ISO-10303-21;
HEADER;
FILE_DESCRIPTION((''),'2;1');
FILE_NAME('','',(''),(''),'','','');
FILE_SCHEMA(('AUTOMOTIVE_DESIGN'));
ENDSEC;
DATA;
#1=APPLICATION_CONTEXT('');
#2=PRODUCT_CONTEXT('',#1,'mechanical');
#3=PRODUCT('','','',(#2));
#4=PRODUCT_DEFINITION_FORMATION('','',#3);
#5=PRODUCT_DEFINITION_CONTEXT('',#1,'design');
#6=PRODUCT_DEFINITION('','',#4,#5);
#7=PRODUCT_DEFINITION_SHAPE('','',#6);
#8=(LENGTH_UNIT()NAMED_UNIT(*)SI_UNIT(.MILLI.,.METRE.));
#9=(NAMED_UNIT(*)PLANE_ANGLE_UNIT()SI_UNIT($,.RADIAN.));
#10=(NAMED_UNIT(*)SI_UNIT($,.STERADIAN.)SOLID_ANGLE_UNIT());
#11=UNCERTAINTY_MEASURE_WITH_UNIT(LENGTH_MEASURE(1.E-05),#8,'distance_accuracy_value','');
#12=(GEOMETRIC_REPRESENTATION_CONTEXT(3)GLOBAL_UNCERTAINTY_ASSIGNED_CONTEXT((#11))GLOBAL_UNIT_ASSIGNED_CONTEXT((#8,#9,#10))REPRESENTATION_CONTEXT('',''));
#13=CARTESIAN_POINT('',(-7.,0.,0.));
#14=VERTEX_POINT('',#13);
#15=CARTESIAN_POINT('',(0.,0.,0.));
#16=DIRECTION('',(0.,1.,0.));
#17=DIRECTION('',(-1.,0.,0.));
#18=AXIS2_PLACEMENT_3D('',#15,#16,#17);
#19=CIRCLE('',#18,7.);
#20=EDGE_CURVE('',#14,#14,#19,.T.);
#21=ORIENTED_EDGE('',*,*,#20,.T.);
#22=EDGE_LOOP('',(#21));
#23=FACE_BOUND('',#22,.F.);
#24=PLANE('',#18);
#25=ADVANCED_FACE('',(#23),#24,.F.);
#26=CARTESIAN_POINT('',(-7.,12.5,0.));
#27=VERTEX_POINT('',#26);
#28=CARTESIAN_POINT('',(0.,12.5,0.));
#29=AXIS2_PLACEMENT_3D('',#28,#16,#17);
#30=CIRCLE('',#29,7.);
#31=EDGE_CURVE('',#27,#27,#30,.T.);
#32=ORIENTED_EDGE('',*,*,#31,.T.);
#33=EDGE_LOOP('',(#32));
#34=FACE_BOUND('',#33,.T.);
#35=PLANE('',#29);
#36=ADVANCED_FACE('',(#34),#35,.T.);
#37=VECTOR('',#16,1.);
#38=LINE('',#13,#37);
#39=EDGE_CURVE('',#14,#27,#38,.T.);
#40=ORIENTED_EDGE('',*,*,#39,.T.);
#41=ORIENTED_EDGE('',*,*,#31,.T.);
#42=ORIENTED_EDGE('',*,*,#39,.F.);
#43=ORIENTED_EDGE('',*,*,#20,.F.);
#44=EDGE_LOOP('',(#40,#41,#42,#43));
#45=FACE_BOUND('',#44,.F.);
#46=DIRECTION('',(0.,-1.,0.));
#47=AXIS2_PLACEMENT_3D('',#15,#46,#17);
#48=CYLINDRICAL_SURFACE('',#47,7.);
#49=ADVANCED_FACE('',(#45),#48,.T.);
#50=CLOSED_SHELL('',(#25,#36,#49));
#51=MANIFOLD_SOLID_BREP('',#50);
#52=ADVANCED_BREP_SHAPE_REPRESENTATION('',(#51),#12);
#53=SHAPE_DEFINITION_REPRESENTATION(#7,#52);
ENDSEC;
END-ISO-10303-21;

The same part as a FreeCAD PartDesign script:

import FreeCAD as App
import Part
import Sketcher

V = App.Vector

doc = App.newDocument("Part")
body = doc.addObject("PartDesign::Body", "Body")

# Sketch on XZ plane
sketch1 = body.newObject("Sketcher::SketchObject", "Sketch")
sketch1.AttachmentSupport = (doc.getObject("XZ_Plane"), [""])
sketch1.MapMode = "FlatFace"
sketch1.addGeometry(Part.Circle(V(0, 0, 0), V(0, 0, 1), 7), False)
sketch1.addConstraint(Sketcher.Constraint("Coincident", 0, 3, -1, 1))
sketch1.addConstraint(Sketcher.Constraint("Diameter", 0, 14.0))
pad1 = body.newObject("PartDesign::Pad", "Pad")
pad1.Profile = sketch1
pad1.Length = 12.5
pad1.Reversed = True

doc.recompute()
